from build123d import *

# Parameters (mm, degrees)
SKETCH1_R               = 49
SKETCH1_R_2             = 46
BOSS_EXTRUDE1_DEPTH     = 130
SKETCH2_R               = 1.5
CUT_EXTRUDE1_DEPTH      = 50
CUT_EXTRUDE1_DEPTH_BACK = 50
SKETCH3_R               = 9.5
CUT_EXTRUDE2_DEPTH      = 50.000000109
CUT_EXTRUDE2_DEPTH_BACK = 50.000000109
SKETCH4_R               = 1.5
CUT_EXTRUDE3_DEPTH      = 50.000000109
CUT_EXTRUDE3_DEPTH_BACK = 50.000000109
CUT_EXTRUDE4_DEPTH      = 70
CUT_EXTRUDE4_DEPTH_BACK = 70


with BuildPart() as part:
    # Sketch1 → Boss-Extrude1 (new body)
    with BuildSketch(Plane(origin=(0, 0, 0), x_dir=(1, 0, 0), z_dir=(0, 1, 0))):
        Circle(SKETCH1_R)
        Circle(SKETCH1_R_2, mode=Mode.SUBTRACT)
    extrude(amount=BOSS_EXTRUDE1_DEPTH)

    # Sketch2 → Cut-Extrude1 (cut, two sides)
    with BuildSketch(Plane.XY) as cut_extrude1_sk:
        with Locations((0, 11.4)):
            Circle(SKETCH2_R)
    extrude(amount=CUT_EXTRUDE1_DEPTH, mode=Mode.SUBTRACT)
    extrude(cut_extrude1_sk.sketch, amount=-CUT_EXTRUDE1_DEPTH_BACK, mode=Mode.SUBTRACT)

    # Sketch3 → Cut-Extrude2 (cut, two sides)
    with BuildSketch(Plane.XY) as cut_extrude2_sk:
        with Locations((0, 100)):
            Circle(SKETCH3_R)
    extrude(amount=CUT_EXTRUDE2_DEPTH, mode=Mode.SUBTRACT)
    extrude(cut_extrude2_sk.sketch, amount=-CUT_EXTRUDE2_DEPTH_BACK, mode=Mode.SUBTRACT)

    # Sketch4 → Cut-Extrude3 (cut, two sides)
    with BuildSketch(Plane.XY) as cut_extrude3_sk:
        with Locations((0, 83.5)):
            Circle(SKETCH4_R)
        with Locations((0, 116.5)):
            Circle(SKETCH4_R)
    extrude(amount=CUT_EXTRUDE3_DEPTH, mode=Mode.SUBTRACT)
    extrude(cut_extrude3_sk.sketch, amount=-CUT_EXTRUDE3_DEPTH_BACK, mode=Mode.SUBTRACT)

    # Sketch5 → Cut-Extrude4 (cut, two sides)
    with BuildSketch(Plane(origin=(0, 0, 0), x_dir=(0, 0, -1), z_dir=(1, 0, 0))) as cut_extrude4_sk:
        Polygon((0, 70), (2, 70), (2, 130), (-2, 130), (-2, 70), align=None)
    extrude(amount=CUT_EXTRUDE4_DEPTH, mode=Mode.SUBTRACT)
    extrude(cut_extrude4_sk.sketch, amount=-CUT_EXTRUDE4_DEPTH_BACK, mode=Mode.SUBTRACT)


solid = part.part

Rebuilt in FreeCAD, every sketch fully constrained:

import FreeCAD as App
import Part
import Sketcher
Q = App.Units.Quantity


def add_polygon(sketch, points):
    """Adds a closed chain of lines whose ends are joined by coincident constraints."""
    first, n = sketch.GeometryCount, len(points)
    for a, b in zip(points, points[1:] + points[:1]):
        sketch.addGeometry(Part.LineSegment(App.Vector(*a, 0), App.Vector(*b, 0)), False)
    for i in range(n):
        sketch.addConstraint(Sketcher.Constraint("Coincident", first + i, 2, first + (i + 1) % n, 1))

doc = App.newDocument("Part")
params = doc.addObject("Spreadsheet::Sheet", "Params")
for row, (alias, value) in enumerate([
    ("sketch1_diameter", "98 mm"),
    ("sketch1_diameter2", "92 mm"),
    ("pad1_length", "130 mm"),
    ("sketch2_diameter", "3 mm"),
    ("sketch3_diameter", "19 mm"),
    ("sketch4_diameter", "3 mm"),
    ("sketch5_width", "60 mm"),
    ("sketch5_height", "4 mm"),
], start=1):
    params.set(f"A{row}", alias)
    params.set(f"B{row}", "=" + value)
    params.setAlias(f"B{row}", alias)

body = doc.addObject("PartDesign::Body", "Body")

# Sketch on XZ plane
sketch1 = body.newObject("Sketcher::SketchObject", "Sketch")
sketch1.AttachmentSupport = (doc.getObject("XZ_Plane"), [""])
sketch1.MapMode = "FlatFace"
sketch1.addGeometry(Part.Circle(App.Vector(0, 0, 0), App.Vector(0, 0, 1), 49), False)
sketch1.addGeometry(Part.Circle(App.Vector(0, 0, 0), App.Vector(0, 0, 1), 46), False)
sketch1.addConstraint(Sketcher.Constraint("Coincident", 0, 3, -1, 1))
sketch1.addConstraint(Sketcher.Constraint("Coincident", 1, 3, -1, 1))
sketch1.addConstraint(Sketcher.Constraint("Diameter", 0, Q("98 mm")))
sketch1.addConstraint(Sketcher.Constraint("Diameter", 1, Q("92 mm")))
sketch1.setExpression("Constraints[2]", "Params.sketch1_diameter")
sketch1.setExpression("Constraints[3]", "Params.sketch1_diameter2")
pad1 = body.newObject("PartDesign::Pad", "Pad")
pad1.Profile = sketch1
pad1.setExpression("Length", "Params.pad1_length")
pad1.Reversed = True

# Sketch on XY plane
sketch2 = body.newObject("Sketcher::SketchObject", "Sketch001")
sketch2.AttachmentSupport = (doc.getObject("XY_Plane"), [""])
sketch2.MapMode = "FlatFace"
sketch2.addGeometry(Part.Circle(App.Vector(0, 11.4, 0), App.Vector(0, 0, 1), 1.5), False)
sketch2.addConstraint(Sketcher.Constraint("PointOnObject", 0, 3, -2))
sketch2.addConstraint(Sketcher.Constraint("Diameter", 0, Q("3 mm")))
sketch2.addConstraint(Sketcher.Constraint("DistanceY", -1, 1, 0, 3, Q("11.4 mm")))
sketch2.setExpression("Constraints[1]", "Params.sketch2_diameter")
pocket1 = body.newObject("PartDesign::Pocket", "Pocket")
pocket1.Profile = sketch2
pocket1.Type = "ThroughAll"
pocket1.Midplane = True

# Sketch on XY plane
sketch3 = body.newObject("Sketcher::SketchObject", "Sketch002")
sketch3.AttachmentSupport = (doc.getObject("XY_Plane"), [""])
sketch3.MapMode = "FlatFace"
sketch3.addGeometry(Part.Circle(App.Vector(0, 100, 0), App.Vector(0, 0, 1), 10), False)
sketch3.addConstraint(Sketcher.Constraint("PointOnObject", 0, 3, -2))
sketch3.addConstraint(Sketcher.Constraint("Diameter", 0, Q("19 mm")))
sketch3.addConstraint(Sketcher.Constraint("DistanceY", -1, 1, 0, 3, Q("100 mm")))
sketch3.setExpression("Constraints[1]", "Params.sketch3_diameter")
pocket2 = body.newObject("PartDesign::Pocket", "Pocket001")
pocket2.Profile = sketch3
pocket2.Type = "ThroughAll"
pocket2.Midplane = True

# Sketch on XY plane
sketch4 = body.newObject("Sketcher::SketchObject", "Sketch003")
sketch4.AttachmentSupport = (doc.getObject("XY_Plane"), [""])
sketch4.MapMode = "FlatFace"
sketch4.addGeometry(Part.Circle(App.Vector(0, 83.5, 0), App.Vector(0, 0, 1), 1.5), False)
sketch4.addGeometry(Part.Circle(App.Vector(0, 116.5, 0), App.Vector(0, 0, 1), 1.5), False)
sketch4.addConstraint(Sketcher.Constraint("Equal", 0, 1))
sketch4.addConstraint(Sketcher.Constraint("PointOnObject", 0, 3, -2))
sketch4.addConstraint(Sketcher.Constraint("PointOnObject", 1, 3, -2))
sketch4.addConstraint(Sketcher.Constraint("Diameter", 0, Q("3 mm")))
sketch4.addConstraint(Sketcher.Constraint("DistanceY", 0, 3, 1, 3, Q("33 mm")))
sketch4.addConstraint(Sketcher.Constraint("DistanceY", -1, 1, 0, 3, Q("83.5 mm")))
sketch4.setExpression("Constraints[3]", "Params.sketch4_diameter")
pocket3 = body.newObject("PartDesign::Pocket", "Pocket002")
pocket3.Profile = sketch4
pocket3.Type = "ThroughAll"
pocket3.Midplane = True

# Sketch on YZ plane
sketch5 = body.newObject("Sketcher::SketchObject", "Sketch004")
sketch5.AttachmentSupport = (doc.getObject("YZ_Plane"), [""])
sketch5.MapMode = "FlatFace"
add_polygon(sketch5, [(70, -2), (130, -2), (130, 2), (70, 2)])  # lines 0-3
sketch5.addConstraint(Sketcher.Constraint("Horizontal", 0))
sketch5.addConstraint(Sketcher.Constraint("Vertical", 1))
sketch5.addConstraint(Sketcher.Constraint("Horizontal", 2))
sketch5.addConstraint(Sketcher.Constraint("Vertical", 3))
sketch5.addConstraint(Sketcher.Constraint("DistanceX", 0, 1, 0, 2, Q("60 mm")))
sketch5.addConstraint(Sketcher.Constraint("DistanceY", 1, 1, 1, 2, Q("4 mm")))
sketch5.addConstraint(Sketcher.Constraint("DistanceX", -1, 1, 0, 2, Q("130 mm")))
sketch5.addConstraint(Sketcher.Constraint("DistanceY", 0, 2, -1, 1, Q("2 mm")))
sketch5.setExpression("Constraints[8]", "Params.sketch5_width")
sketch5.setExpression("Constraints[9]", "Params.sketch5_height")
pocket4 = body.newObject("PartDesign::Pocket", "Pocket003")
pocket4.Profile = sketch5
pocket4.Type = "ThroughAll"
pocket4.Midplane = True

doc.recompute()
